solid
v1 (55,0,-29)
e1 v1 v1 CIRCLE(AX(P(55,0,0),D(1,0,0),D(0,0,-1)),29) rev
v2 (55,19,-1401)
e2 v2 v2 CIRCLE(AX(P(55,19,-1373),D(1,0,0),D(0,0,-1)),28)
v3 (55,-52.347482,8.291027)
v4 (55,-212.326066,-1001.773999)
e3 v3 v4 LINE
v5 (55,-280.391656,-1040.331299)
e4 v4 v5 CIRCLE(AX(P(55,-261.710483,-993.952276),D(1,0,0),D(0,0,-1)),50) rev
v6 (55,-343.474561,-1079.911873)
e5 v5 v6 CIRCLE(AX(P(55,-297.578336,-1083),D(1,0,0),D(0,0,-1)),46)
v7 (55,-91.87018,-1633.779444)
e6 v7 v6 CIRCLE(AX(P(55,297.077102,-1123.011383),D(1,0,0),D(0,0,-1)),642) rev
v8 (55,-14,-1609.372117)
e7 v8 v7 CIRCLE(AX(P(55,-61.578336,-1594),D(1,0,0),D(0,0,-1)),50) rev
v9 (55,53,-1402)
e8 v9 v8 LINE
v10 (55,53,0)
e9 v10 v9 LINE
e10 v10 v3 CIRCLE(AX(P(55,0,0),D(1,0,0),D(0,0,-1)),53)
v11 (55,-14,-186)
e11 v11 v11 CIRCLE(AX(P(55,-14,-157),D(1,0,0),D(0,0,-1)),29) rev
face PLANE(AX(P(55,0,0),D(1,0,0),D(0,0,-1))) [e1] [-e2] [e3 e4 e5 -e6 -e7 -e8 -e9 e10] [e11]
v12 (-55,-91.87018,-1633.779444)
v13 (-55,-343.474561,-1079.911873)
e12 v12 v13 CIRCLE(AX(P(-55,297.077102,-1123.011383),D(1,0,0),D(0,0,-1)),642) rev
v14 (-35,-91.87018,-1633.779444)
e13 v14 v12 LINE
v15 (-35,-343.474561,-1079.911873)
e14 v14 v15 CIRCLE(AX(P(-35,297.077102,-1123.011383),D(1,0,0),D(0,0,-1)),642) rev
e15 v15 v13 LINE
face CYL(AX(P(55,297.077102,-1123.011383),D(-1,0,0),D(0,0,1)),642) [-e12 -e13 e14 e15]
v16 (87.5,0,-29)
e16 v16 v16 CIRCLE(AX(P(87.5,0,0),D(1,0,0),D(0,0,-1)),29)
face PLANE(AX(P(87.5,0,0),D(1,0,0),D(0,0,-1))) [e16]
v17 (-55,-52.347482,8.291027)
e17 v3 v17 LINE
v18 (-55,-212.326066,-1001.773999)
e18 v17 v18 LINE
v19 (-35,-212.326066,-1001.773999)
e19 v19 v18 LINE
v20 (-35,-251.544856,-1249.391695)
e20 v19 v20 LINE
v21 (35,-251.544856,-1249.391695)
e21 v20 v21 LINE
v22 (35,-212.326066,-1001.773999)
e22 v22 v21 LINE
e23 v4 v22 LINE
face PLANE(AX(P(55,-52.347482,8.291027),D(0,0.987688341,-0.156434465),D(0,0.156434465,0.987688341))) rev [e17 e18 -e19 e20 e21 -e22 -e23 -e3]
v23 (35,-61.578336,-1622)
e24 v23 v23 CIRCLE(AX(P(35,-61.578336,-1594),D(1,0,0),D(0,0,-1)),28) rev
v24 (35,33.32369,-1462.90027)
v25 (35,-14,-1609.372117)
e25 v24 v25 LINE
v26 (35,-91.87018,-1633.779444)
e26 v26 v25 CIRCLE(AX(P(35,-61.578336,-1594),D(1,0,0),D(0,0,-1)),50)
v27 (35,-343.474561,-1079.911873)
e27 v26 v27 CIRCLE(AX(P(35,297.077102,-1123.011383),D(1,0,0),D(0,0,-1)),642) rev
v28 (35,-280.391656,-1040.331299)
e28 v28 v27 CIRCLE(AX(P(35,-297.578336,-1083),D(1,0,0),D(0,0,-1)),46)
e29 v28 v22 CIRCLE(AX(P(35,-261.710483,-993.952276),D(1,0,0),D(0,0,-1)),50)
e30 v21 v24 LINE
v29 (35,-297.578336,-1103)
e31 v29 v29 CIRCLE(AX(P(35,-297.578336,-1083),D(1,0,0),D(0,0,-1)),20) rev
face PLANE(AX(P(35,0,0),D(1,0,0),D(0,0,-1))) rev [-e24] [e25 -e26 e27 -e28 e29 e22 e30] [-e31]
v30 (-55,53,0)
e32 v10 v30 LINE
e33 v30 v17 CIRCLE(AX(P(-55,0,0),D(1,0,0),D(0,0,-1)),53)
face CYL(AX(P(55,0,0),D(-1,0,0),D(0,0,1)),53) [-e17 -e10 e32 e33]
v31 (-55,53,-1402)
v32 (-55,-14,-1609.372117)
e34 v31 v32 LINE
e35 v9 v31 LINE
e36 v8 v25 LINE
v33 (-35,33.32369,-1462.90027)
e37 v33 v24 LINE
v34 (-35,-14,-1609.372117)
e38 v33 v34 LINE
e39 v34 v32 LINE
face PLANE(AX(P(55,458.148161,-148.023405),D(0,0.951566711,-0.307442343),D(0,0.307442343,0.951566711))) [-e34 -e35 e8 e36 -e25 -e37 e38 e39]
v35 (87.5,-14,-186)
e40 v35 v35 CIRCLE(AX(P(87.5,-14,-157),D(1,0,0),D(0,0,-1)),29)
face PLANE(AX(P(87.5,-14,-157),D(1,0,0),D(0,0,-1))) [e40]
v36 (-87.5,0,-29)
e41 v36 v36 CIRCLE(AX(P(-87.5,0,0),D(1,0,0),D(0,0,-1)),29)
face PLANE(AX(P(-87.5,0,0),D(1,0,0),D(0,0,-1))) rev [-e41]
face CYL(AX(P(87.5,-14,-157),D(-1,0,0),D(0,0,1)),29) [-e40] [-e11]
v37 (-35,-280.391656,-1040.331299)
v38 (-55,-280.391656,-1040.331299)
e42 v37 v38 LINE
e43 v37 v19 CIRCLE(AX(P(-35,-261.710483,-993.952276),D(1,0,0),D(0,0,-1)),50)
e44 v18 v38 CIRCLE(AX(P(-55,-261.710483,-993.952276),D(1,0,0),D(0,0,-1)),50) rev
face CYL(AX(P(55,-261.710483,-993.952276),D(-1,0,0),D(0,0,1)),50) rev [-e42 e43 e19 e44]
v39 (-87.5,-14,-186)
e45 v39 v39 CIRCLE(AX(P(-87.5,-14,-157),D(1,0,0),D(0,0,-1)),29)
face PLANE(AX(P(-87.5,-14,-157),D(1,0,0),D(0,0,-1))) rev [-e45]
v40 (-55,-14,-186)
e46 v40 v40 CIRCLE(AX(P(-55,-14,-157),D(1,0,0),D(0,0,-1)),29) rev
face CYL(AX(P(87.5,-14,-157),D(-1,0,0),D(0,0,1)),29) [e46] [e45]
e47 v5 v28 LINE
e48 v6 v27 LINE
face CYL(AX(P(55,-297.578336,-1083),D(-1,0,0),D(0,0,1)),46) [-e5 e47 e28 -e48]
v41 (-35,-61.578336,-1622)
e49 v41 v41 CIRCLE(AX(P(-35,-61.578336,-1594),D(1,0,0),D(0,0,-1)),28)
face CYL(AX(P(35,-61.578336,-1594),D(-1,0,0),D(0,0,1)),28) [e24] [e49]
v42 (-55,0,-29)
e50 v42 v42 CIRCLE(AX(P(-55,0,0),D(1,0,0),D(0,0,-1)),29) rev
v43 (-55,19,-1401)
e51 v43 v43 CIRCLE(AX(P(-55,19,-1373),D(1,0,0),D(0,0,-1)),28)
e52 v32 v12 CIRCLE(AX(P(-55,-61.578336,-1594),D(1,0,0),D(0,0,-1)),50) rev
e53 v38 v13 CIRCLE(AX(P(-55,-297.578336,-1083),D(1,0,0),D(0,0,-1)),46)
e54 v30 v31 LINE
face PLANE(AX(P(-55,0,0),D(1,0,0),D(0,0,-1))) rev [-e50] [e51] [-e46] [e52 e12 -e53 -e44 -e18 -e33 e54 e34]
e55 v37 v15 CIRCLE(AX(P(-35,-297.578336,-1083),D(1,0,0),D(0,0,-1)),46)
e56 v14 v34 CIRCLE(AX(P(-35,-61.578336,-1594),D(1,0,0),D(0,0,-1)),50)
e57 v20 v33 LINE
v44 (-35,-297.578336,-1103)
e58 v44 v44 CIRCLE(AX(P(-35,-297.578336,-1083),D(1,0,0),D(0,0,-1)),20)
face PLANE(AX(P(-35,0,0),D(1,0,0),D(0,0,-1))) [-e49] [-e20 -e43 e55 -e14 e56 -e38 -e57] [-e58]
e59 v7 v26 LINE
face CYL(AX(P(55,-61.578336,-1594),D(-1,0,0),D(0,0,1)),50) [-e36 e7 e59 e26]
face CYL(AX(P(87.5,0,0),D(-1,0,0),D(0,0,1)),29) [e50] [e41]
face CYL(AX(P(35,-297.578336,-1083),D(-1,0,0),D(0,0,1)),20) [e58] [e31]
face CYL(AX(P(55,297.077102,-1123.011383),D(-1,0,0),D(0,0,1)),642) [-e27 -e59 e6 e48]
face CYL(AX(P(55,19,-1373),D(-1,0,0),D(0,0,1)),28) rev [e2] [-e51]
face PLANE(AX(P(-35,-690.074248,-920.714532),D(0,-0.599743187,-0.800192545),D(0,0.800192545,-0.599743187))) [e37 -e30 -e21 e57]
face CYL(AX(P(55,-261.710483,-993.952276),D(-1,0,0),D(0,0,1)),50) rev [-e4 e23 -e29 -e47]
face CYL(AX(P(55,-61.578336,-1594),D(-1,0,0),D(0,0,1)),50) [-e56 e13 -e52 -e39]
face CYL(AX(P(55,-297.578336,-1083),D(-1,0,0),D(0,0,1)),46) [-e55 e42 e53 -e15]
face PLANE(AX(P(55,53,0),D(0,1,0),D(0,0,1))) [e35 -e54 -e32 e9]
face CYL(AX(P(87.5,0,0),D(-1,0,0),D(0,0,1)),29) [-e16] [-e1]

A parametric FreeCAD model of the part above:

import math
import FreeCAD as App
import Part
import Sketcher
Q = App.Units.Quantity

doc = App.newDocument("Part")
params = doc.addObject("Spreadsheet::Sheet", "Params")
for row, (alias, value) in enumerate([
    ("sketch1_diameter", "56 mm"),
    ("sketch1_radius", "642 mm"),
    ("sketch1_radius2", "50 mm"),
    ("sketch1_radius3", "53 mm"),
    ("sketch1_radius4", "46 mm"),
    ("pad1_length", "110 mm"),
    ("sketch2_radius", "50 mm"),
    ("sketch2_radius2", "46 mm"),
    ("sketch2_radius3", "642 mm"),
    ("sketch2_length", "356 mm"),
    ("pocket1_length", "70 mm"),
    ("sketch3_diameter", "56 mm"),
    ("sketch3_diameter2", "40 mm"),
    ("pad2_length", "70 mm"),
    ("sketch4_diameter", "58 mm"),
    ("pad3_length", "175 mm"),
], start=1):
    params.set(f"A{row}", alias)
    params.set(f"B{row}", "=" + value)
    params.setAlias(f"B{row}", alias)

body = doc.addObject("PartDesign::Body", "Body")

# Sketch on YZ plane
sketch1 = body.newObject("Sketcher::SketchObject", "Sketch")
sketch1.AttachmentSupport = (doc.getObject("YZ_Plane"), [""])
sketch1.MapMode = "FlatFace"
sketch1.addGeometry([
    Part.ArcOfCircle(Part.Circle(App.Vector(297, -1123, 0), App.Vector(0, 0, 1), 642), math.radians(176), math.radians(233)),  # 0
    Part.ArcOfCircle(Part.Circle(App.Vector(-62, -1594, 0), App.Vector(0, 0, 1), 50), math.radians(-127), math.radians(-18)),  # 1
    Part.LineSegment(App.Vector(-14, -1609, 0), App.Vector(53, -1402, 0)),  # 2
    Part.LineSegment(App.Vector(53, -1402, 0), App.Vector(53, 0, 0)),  # 3
    Part.ArcOfCircle(Part.Circle(App.Vector(0, 0, 0), App.Vector(0, 0, 1), 53), math.radians(0), math.radians(171)),  # 4
    Part.LineSegment(App.Vector(-52, 8, 0), App.Vector(-212, -1002, 0)),  # 5
    Part.ArcOfCircle(Part.Circle(App.Vector(-262, -994, 0), App.Vector(0, 0, 1), 50), math.radians(-112), math.radians(-9)),  # 6
    Part.ArcOfCircle(Part.Circle(App.Vector(-298, -1083, 0), App.Vector(0, 0, 1), 46), math.radians(68), math.radians(176)),  # 7
    Part.Circle(App.Vector(19, -1373, 0), App.Vector(0, 0, 1), 28),  # 8
], False)
sketch1.addConstraint([
    Sketcher.Constraint("Tangent", 0, 2, 1, 1),
    Sketcher.Constraint("Tangent", 1, 2, 2, 1),
    Sketcher.Constraint("Coincident", 2, 2, 3, 1),
    Sketcher.Constraint("Tangent", 3, 2, 4, 1),
    Sketcher.Constraint("Tangent", 4, 2, 5, 1),
    Sketcher.Constraint("Tangent", 5, 2, 6, 2),
    Sketcher.Constraint("Tangent", 6, 1, 7, 1),
    Sketcher.Constraint("Tangent", 7, 2, 0, 1),
    Sketcher.Constraint("Vertical", 3),
    Sketcher.Constraint("Coincident", 4, 3, -1, 1),
    Sketcher.Constraint("Equal", 1, 6),
    Sketcher.Constraint("Diameter", 8, 56.0),
    Sketcher.Constraint("Radius", 0, 642.0),
    Sketcher.Constraint("Radius", 1, 50.0),
    Sketcher.Constraint("Radius", 4, 53.0),
    Sketcher.Constraint("Radius", 7, 46.0),
    Sketcher.Constraint("DistanceY", 3, 1, 3, 2, 1402.0),
    Sketcher.Constraint("Angle", 5, Q("-99 deg")),
    Sketcher.Constraint("DistanceY", 1, 3, -1, 1, 1594.0),
    Sketcher.Constraint("DistanceY", 7, 3, -1, 1, 1083.0),
    Sketcher.Constraint("DistanceX", -1, 1, 8, 3, 19.0),
    Sketcher.Constraint("DistanceY", 8, 3, -1, 1, 1373.0),
    Sketcher.Constraint("DistanceX", 1, 2, -1, 1, 14.0),
    Sketcher.Constraint("DistanceX", 7, 3, 1, 3, 236.0),
])
sketch1.setExpression("Constraints[11]", "Params.sketch1_diameter")
sketch1.setExpression("Constraints[12]", "Params.sketch1_radius")
sketch1.setExpression("Constraints[13]", "Params.sketch1_radius2")
sketch1.setExpression("Constraints[14]", "Params.sketch1_radius3")
sketch1.setExpression("Constraints[15]", "Params.sketch1_radius4")
pad1 = body.newObject("PartDesign::Pad", "Pad")
pad1.Profile = sketch1
pad1.setExpression("Length", "Params.pad1_length")
pad1.Midplane = True

# Sketch on YZ plane
sketch2 = body.newObject("Sketcher::SketchObject", "Sketch001")
sketch2.AttachmentSupport = (doc.getObject("YZ_Plane"), [""])
sketch2.MapMode = "FlatFace"
sketch2.addGeometry([
    Part.LineSegment(App.Vector(33, -1463, 0), App.Vector(-252, -1249, 0)),  # 0
    Part.LineSegment(App.Vector(-252, -1249, 0), App.Vector(-212, -1002, 0)),  # 1
    Part.ArcOfCircle(Part.Circle(App.Vector(-262, -994, 0), App.Vector(0, 0, 1), 50), math.radians(-112), math.radians(-9)),  # 2
    Part.ArcOfCircle(Part.Circle(App.Vector(-298, -1083, 0), App.Vector(0, 0, 1), 46), math.radians(68), math.radians(176)),  # 3
    Part.ArcOfCircle(Part.Circle(App.Vector(297, -1123, 0), App.Vector(0, 0, 1), 642), math.radians(176), math.radians(233)),  # 4
    Part.ArcOfCircle(Part.Circle(App.Vector(-62, -1594, 0), App.Vector(0, 0, 1), 50), math.radians(-127), math.radians(-18)),  # 5
    Part.LineSegment(App.Vector(-14, -1609, 0), App.Vector(33, -1463, 0)),  # 6
], False)
sketch2.addConstraint([
    Sketcher.Constraint("Coincident", 0, 2, 1, 1),
    Sketcher.Constraint("Tangent", 1, 2, 2, 2),
    Sketcher.Constraint("Tangent", 2, 1, 3, 1),
    Sketcher.Constraint("Tangent", 3, 2, 4, 1),
    Sketcher.Constraint("Tangent", 4, 2, 5, 1),
    Sketcher.Constraint("Tangent", 5, 2, 6, 1),
    Sketcher.Constraint("Coincident", 6, 2, 0, 1),
    Sketcher.Constraint("Equal", 2, 5),
    Sketcher.Constraint("Radius", 2, 50.0),
    Sketcher.Constraint("Radius", 3, 46.0),
    Sketcher.Constraint("Radius", 4, 642.0),
    Sketcher.Constraint("Angle", 1, Q("81 deg")),
    Sketcher.Constraint("Distance", 0, 356.0),
    Sketcher.Constraint("DistanceY", 3, 3, -1, 1, 1083.0),
    Sketcher.Constraint("DistanceY", 5, 3, -1, 1, 1594.0),
    Sketcher.Constraint("DistanceX", 5, 2, -1, 1, 14.0),
    Sketcher.Constraint("DistanceX", 3, 3, 5, 3, 236.0),
    Sketcher.Constraint("DistanceY", 1, 2, -1, 1, 1001.773999),
    Sketcher.Constraint("DistanceX", -1, 1, 4, 3, 297.077102),
    Sketcher.Constraint("Distance", 1, 250.704281),
])
sketch2.setExpression("Constraints[8]", "Params.sketch2_radius")
sketch2.setExpression("Constraints[9]", "Params.sketch2_radius2")
sketch2.setExpression("Constraints[10]", "Params.sketch2_radius3")
sketch2.setExpression("Constraints[12]", "Params.sketch2_length")
pocket1 = body.newObject("PartDesign::Pocket", "Pocket")
pocket1.Profile = sketch2
pocket1.setExpression("Length", "Params.pocket1_length")
pocket1.Midplane = True

# Sketch on YZ plane
sketch3 = body.newObject("Sketcher::SketchObject", "Sketch002")
sketch3.AttachmentSupport = (doc.getObject("YZ_Plane"), [""])
sketch3.MapMode = "FlatFace"
sketch3.addGeometry([
    Part.Circle(App.Vector(-62, -1594, 0), App.Vector(0, 0, 1), 28),
    Part.Circle(App.Vector(-298, -1083, 0), App.Vector(0, 0, 1), 20),
], False)
sketch3.addConstraint([
    Sketcher.Constraint("Diameter", 0, 56.0),
    Sketcher.Constraint("Diameter", 1, 40.0),
    Sketcher.Constraint("DistanceY", 0, 3, -1, 1, 1594.0),
    Sketcher.Constraint("DistanceY", 1, 3, -1, 1, 1083.0),
    Sketcher.Constraint("DistanceX", 1, 3, 0, 3, 236.0),
    Sketcher.Constraint("DistanceX", 0, 3, -1, 1, 61.578336),
])
sketch3.setExpression("Constraints[0]", "Params.sketch3_diameter")
sketch3.setExpression("Constraints[1]", "Params.sketch3_diameter2")
pad2 = body.newObject("PartDesign::Pad", "Pad001")
pad2.Profile = sketch3
pad2.setExpression("Length", "Params.pad2_length")
pad2.Midplane = True

# Sketch on YZ plane
sketch4 = body.newObject("Sketcher::SketchObject", "Sketch003")
sketch4.AttachmentSupport = (doc.getObject("YZ_Plane"), [""])
sketch4.MapMode = "FlatFace"
sketch4.addGeometry([
    Part.Circle(App.Vector(0, 0, 0), App.Vector(0, 0, 1), 29),
    Part.Circle(App.Vector(-14, -157, 0), App.Vector(0, 0, 1), 29),
], False)
sketch4.addConstraint([
    Sketcher.Constraint("Coincident", 0, 3, -1, 1),
    Sketcher.Constraint("Equal", 0, 1),
    Sketcher.Constraint("Diameter", 0, 58.0),
    Sketcher.Constraint("DistanceX", 1, 3, -1, 1, 14.0),
    Sketcher.Constraint("DistanceY", 1, 3, -1, 1, 157.0),
])
sketch4.setExpression("Constraints[2]", "Params.sketch4_diameter")
pad3 = body.newObject("PartDesign::Pad", "Pad002")
pad3.Profile = sketch4
pad3.setExpression("Length", "Params.pad3_length")
pad3.Midplane = True

doc.recompute()
